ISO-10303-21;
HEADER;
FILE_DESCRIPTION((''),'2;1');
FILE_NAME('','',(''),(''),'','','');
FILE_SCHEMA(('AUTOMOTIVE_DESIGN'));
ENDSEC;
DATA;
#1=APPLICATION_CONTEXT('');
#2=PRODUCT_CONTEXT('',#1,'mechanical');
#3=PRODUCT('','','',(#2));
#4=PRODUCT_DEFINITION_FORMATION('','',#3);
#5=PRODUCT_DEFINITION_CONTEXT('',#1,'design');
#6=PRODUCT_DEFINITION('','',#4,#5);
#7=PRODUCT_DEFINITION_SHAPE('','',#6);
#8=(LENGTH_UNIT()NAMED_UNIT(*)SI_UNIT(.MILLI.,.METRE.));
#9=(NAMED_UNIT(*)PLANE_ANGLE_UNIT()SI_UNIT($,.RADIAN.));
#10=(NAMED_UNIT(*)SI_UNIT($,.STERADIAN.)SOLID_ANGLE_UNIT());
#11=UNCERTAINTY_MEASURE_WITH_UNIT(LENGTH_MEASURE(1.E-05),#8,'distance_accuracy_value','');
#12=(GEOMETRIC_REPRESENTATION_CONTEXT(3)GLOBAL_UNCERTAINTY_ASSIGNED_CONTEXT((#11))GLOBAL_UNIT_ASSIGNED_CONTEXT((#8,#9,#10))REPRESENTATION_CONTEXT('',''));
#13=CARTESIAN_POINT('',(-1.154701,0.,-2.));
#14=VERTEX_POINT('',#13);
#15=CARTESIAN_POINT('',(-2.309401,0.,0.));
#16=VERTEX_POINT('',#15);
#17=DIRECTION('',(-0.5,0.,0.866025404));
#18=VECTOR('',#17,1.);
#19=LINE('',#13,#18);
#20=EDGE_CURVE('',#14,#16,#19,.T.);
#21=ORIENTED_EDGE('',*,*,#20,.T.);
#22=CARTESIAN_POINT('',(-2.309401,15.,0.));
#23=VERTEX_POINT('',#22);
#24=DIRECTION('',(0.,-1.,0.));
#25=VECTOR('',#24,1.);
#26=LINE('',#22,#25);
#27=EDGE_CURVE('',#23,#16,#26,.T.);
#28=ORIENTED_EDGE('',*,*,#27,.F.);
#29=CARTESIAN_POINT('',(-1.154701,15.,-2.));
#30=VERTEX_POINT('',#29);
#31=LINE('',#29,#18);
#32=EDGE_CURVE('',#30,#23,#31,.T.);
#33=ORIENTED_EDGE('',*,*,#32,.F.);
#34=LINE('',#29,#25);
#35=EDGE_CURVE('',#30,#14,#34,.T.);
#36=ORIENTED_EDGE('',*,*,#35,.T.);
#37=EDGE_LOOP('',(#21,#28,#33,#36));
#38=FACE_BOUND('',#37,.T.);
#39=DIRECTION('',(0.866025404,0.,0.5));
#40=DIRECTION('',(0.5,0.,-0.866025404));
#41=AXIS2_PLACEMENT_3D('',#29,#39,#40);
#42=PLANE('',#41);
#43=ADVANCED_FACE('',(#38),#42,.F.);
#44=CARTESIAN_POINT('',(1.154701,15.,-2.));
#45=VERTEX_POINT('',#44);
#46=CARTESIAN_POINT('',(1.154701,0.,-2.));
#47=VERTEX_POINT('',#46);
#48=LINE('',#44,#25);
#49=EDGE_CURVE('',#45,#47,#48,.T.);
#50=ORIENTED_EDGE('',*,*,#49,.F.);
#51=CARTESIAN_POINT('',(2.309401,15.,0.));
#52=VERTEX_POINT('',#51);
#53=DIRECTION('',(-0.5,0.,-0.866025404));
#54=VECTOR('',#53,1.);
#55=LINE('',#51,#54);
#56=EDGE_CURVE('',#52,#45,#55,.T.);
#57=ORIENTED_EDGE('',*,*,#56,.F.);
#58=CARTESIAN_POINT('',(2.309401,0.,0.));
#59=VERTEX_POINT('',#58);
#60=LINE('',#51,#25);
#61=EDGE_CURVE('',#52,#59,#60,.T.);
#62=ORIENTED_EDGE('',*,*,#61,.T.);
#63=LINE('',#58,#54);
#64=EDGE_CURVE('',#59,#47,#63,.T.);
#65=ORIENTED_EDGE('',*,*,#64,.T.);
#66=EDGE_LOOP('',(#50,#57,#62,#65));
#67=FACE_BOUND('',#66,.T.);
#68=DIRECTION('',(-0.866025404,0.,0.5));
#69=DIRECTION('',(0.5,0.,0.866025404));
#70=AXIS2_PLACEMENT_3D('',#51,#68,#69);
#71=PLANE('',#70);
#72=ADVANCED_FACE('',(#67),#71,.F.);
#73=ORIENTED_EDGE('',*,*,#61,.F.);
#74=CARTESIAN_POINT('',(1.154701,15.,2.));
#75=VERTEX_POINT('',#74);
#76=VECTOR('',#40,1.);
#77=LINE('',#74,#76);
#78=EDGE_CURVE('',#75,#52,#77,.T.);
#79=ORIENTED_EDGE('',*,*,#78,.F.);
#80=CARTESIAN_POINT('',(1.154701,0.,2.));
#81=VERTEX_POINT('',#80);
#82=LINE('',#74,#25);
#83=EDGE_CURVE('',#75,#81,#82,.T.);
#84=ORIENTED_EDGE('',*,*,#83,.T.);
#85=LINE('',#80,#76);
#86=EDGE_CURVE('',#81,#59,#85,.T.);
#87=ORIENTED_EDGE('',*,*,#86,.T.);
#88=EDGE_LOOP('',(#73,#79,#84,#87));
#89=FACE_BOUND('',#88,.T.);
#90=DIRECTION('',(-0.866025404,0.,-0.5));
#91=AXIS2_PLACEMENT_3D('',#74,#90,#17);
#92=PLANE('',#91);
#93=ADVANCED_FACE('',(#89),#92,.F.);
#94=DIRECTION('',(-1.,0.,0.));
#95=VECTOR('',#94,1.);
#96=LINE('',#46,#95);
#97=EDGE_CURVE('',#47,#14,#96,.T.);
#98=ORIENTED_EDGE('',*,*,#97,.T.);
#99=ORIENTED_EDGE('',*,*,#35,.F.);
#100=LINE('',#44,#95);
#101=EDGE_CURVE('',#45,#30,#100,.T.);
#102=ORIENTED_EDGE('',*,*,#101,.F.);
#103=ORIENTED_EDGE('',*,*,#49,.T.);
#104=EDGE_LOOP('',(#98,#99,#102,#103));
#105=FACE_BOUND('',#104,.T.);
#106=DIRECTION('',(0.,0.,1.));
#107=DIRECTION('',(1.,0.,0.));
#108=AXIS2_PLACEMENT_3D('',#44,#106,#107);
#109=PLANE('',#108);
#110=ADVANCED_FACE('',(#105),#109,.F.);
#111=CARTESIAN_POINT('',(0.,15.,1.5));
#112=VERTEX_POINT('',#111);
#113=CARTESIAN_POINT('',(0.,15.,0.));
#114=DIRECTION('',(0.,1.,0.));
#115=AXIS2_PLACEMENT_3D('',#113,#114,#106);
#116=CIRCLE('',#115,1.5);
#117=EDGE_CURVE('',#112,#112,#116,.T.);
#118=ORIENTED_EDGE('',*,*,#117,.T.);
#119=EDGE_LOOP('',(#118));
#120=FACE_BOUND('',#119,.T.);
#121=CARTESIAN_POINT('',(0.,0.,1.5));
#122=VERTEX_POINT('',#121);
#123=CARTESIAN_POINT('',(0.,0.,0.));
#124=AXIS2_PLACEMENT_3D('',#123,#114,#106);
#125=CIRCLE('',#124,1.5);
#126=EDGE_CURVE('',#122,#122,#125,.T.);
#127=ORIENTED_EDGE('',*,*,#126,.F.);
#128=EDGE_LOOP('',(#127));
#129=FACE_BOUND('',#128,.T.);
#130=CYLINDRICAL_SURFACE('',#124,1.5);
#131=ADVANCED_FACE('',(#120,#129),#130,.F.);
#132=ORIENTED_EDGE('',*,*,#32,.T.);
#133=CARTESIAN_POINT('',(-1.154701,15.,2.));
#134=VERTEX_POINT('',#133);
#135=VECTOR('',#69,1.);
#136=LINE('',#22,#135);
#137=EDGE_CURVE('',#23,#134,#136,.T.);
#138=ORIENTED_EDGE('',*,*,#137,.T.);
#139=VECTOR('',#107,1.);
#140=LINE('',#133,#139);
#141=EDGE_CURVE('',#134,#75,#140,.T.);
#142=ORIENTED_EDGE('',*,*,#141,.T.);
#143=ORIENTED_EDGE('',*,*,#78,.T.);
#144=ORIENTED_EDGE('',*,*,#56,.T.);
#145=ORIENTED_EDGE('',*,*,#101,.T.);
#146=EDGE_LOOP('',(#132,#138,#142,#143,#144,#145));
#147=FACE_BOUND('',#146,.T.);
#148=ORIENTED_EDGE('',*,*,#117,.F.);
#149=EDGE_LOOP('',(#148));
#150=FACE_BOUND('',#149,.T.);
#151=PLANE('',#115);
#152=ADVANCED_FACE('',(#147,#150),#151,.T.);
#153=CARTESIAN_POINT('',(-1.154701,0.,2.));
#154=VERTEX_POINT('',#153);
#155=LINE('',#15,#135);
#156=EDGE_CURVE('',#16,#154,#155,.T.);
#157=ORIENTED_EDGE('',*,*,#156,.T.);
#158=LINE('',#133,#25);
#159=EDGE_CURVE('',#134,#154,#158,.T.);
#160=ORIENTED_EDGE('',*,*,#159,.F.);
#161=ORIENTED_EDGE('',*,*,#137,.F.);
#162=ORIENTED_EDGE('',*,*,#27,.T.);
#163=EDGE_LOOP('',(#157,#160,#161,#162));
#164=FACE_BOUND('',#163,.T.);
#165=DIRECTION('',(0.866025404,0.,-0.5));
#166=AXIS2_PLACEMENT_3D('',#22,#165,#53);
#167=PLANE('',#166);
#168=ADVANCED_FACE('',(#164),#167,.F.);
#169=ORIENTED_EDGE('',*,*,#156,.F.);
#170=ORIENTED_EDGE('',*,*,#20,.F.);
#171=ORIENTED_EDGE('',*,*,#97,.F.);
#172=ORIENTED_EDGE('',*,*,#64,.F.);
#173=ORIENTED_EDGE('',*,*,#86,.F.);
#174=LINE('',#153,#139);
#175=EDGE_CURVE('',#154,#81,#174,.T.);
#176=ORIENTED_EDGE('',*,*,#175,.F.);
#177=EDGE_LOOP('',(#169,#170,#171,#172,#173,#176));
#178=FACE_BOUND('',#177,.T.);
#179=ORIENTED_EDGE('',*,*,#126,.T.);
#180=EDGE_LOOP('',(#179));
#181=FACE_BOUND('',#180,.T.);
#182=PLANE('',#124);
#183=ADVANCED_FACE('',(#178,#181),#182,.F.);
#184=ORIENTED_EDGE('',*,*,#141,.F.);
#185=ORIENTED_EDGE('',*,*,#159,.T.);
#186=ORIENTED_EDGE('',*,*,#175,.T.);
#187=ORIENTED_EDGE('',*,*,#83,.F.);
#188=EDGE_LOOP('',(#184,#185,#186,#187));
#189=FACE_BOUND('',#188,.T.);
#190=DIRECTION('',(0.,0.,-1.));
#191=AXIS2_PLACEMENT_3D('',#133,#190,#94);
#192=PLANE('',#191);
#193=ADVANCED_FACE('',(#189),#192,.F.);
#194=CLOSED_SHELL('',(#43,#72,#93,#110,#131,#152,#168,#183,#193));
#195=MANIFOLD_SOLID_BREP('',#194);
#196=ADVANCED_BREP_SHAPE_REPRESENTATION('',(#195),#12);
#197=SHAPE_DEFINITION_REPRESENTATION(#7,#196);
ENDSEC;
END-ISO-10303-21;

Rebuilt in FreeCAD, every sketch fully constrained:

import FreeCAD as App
import Part
import Sketcher
from FreeCAD import Vector
Q = App.Units.Quantity


def add_polygon(sketch, points):
    """Adds a closed chain of lines whose ends are joined by coincident constraints."""
    first, n = sketch.GeometryCount, len(points)
    for a, b in zip(points, points[1:] + points[:1]):
        sketch.addGeometry(Part.LineSegment(App.Vector(*a, 0), App.Vector(*b, 0)), False)
    for i in range(n):
        sketch.addConstraint(Sketcher.Constraint("Coincident", first + i, 2, first + (i + 1) % n, 1))

doc = App.newDocument("Part")
body = doc.addObject("PartDesign::Body", "Body")

# Sketch on XZ plane
sketch1 = body.newObject("Sketcher::SketchObject", "Sketch")
sketch1.AttachmentSupport = (doc.getObject("XZ_Plane"), [""])
sketch1.MapMode = "FlatFace"
add_polygon(sketch1, [(2.309401, 0), (1.154701, -2), (-1.154701, -2), (-2.309401, 0), (-1.154701, 2), (1.154701, 2)])  # lines 0-5
sketch1.addConstraint([
    Sketcher.Constraint("Horizontal", 1),
    Sketcher.Constraint("Horizontal", 4),
    Sketcher.Constraint("Symmetric", 0, 2, 3, 2, -1, 1),
    Sketcher.Constraint("Symmetric", 2, 2, 5, 2, -1, 1),
    Sketcher.Constraint("PointOnObject", 2, 2, -1),
    Sketcher.Constraint("Parallel", 2, 5),
    Sketcher.Constraint("Vertical", 1, 2, 3, 2),
    Sketcher.Constraint("Angle", 0, Q("-120 deg")),
    Sketcher.Constraint("DistanceY", 0, 2, -1, 1, 2.0),
    Sketcher.Constraint("DistanceX", 1, 2, 1, 1, 2.309401),
])
pad1 = body.newObject("PartDesign::Pad", "Pad")
pad1.Profile = sketch1
pad1.Length = 15
pad1.Reversed = True

# Sketch on XZ plane
sketch2 = body.newObject("Sketcher::SketchObject", "Sketch001")
sketch2.AttachmentSupport = (doc.getObject("XZ_Plane"), [""])
sketch2.MapMode = "FlatFace"
sketch2.AttachmentOffset = App.Placement(Vector(0, 0, -15), App.Rotation())
sketch2.addGeometry(Part.Circle(Vector(0, 0, 0), Vector(0, 0, 1), 1.5), False)
sketch2.addConstraint([
    Sketcher.Constraint("Coincident", 0, 3, -1, 1),
    Sketcher.Constraint("Diameter", 0, 3.0),
])
pocket1 = body.newObject("PartDesign::Pocket", "Pocket")
pocket1.Profile = sketch2
pocket1.Type = "ThroughAll"
pocket1.Reversed = True

doc.recompute()
